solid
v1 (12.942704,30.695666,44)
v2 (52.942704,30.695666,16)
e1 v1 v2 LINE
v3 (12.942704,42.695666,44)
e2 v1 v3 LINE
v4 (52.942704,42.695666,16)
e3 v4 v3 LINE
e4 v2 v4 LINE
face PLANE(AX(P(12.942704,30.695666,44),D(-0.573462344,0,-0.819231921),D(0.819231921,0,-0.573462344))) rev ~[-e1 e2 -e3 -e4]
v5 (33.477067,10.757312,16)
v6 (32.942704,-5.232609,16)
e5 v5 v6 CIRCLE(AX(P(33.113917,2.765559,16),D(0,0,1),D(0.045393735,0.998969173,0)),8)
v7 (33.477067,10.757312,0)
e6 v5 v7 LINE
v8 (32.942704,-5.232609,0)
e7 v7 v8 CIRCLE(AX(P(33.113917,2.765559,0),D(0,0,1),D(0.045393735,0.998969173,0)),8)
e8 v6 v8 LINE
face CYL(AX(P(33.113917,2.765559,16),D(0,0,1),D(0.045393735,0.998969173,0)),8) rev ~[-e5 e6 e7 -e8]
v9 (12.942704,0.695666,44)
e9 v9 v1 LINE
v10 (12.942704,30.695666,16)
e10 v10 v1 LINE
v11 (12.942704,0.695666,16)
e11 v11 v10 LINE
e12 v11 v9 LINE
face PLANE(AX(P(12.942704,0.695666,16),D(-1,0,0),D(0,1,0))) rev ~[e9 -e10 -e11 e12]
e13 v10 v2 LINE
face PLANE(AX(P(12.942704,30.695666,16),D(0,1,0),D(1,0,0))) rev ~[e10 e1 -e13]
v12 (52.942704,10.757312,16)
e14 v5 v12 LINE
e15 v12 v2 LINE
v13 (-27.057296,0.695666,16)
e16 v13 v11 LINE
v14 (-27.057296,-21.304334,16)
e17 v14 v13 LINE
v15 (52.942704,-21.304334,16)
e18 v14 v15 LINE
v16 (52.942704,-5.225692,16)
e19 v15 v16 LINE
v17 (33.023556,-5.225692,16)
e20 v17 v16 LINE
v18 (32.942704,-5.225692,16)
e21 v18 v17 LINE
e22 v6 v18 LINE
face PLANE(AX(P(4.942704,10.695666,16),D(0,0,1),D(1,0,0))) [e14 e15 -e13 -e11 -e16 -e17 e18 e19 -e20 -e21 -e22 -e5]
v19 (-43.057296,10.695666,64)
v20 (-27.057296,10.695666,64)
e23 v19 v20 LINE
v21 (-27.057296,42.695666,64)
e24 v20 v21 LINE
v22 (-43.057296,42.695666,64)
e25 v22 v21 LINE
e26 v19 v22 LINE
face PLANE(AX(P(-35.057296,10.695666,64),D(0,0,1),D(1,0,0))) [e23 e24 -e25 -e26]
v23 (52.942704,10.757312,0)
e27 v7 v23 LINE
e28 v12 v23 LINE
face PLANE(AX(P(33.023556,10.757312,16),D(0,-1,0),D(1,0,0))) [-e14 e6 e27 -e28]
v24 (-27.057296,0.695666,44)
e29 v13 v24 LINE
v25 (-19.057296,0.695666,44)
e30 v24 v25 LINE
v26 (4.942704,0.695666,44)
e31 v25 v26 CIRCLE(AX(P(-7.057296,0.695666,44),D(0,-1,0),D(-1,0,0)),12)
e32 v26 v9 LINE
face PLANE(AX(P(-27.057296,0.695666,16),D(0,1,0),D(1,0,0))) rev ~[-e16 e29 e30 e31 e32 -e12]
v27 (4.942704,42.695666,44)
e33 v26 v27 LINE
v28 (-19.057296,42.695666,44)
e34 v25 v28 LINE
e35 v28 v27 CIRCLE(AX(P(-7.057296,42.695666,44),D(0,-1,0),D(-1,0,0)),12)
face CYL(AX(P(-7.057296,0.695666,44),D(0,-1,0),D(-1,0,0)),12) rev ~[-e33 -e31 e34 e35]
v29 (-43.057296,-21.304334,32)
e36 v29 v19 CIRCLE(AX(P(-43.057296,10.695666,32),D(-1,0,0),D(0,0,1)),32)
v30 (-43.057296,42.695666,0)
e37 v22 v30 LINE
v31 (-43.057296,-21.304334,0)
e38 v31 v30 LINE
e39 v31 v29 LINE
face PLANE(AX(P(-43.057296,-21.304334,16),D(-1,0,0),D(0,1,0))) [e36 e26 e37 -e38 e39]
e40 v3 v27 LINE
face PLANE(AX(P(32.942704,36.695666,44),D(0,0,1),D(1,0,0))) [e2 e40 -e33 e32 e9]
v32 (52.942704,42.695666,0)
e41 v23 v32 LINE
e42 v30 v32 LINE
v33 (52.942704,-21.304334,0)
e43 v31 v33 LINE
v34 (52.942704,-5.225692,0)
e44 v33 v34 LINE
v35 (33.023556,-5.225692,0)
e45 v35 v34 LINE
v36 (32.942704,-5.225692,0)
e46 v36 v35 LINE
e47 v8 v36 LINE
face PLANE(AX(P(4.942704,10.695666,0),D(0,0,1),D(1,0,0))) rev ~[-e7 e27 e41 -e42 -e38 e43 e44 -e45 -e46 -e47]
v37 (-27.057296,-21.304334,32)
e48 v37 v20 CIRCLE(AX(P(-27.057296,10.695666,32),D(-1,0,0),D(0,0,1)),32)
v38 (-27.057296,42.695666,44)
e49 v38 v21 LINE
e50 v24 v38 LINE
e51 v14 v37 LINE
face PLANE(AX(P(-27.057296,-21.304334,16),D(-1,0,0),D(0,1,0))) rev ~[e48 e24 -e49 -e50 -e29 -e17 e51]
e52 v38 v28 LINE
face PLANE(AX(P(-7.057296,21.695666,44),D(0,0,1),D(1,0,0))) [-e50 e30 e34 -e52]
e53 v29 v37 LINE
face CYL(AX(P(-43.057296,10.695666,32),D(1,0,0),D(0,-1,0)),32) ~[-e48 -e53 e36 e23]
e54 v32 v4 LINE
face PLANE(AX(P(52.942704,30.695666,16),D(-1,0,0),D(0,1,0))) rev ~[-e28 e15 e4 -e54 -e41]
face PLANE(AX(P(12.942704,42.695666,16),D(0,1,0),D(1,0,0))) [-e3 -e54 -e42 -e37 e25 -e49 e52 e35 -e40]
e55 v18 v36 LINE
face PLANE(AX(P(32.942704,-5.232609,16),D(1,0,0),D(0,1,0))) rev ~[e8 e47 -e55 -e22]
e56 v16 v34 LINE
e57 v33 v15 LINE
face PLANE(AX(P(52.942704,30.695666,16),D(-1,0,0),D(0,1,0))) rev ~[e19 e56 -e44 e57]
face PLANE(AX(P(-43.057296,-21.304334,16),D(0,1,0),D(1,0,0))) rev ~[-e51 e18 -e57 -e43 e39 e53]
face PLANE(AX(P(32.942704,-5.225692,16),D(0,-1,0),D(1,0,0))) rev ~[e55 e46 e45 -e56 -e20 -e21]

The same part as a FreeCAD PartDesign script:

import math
import FreeCAD as App
import Part
import Sketcher
from FreeCAD import Vector


def edges_at(feature, points):
    """Names of the edges that pass closest to the given points."""
    edges = feature.Shape.Edges
    near = lambda p: min(range(len(edges)), key=lambda i: edges[i].distToShape(Part.Vertex(*p))[0])
    return sorted({f"Edge{near(p) + 1}" for p in points})

doc = App.newDocument("Part")
body = doc.addObject("PartDesign::Body", "Body")

# Sketch on XY plane
sketch1 = body.newObject("Sketcher::SketchObject", "Sketch")
sketch1.AttachmentSupport = (doc.getObject("XY_Plane"), [""])
sketch1.MapMode = "FlatFace"
sketch1.addGeometry([
    Part.LineSegment(Vector(-43, 43, 0), Vector(-43, -21, 0)),
    Part.LineSegment(Vector(-43, -21, 0), Vector(53, -21, 0)),
    Part.LineSegment(Vector(53, -21, 0), Vector(53, 43, 0)),
    Part.LineSegment(Vector(53, 43, 0), Vector(-43, 43, 0)),
], False)
sketch1.addConstraint([
    Sketcher.Constraint("Coincident", 0, 2, 1, 1),
    Sketcher.Constraint("Coincident", 1, 2, 2, 1),
    Sketcher.Constraint("Coincident", 2, 2, 3, 1),
    Sketcher.Constraint("Coincident", 3, 2, 0, 1),
    Sketcher.Constraint("Vertical", 0),
    Sketcher.Constraint("Horizontal", 1),
    Sketcher.Constraint("Vertical", 2),
    Sketcher.Constraint("Horizontal", 3),
    Sketcher.Constraint("DistanceX", 1, 1, 1, 2, 96.0),
    Sketcher.Constraint("DistanceY", 0, 2, 0, 1, 64.0),
    Sketcher.Constraint("DistanceX", 0, 2, -1, 1, 43.057296),
    Sketcher.Constraint("DistanceY", 0, 2, -1, 1, 21.304334),
])
pad1 = body.newObject("PartDesign::Pad", "Pad")
pad1.Profile = sketch1
pad1.Length = 16

# Sketch on XY plane
sketch2 = body.newObject("Sketcher::SketchObject", "Sketch001")
sketch2.AttachmentSupport = (doc.getObject("XY_Plane"), [""])
sketch2.MapMode = "FlatFace"
sketch2.AttachmentOffset = App.Placement(Vector(0, 0, 16), App.Rotation())
sketch2.addGeometry([
    Part.LineSegment(Vector(-43, 43, 0), Vector(-43, -21, 0)),
    Part.LineSegment(Vector(-43, -21, 0), Vector(-27, -21, 0)),
    Part.LineSegment(Vector(-27, -21, 0), Vector(-27, 43, 0)),
    Part.LineSegment(Vector(-27, 43, 0), Vector(-43, 43, 0)),
], False)
sketch2.addConstraint([
    Sketcher.Constraint("Coincident", 0, 2, 1, 1),
    Sketcher.Constraint("Coincident", 1, 2, 2, 1),
    Sketcher.Constraint("Coincident", 2, 2, 3, 1),
    Sketcher.Constraint("Coincident", 3, 2, 0, 1),
    Sketcher.Constraint("Vertical", 0),
    Sketcher.Constraint("Horizontal", 1),
    Sketcher.Constraint("Vertical", 2),
    Sketcher.Constraint("Horizontal", 3),
    Sketcher.Constraint("DistanceX", 1, 1, 1, 2, 16.0),
    Sketcher.Constraint("DistanceY", 0, 2, 0, 1, 64.0),
    Sketcher.Constraint("DistanceX", 0, 2, -1, 1, 43.057296),
    Sketcher.Constraint("DistanceY", 0, 2, -1, 1, 21.304334),
])
pad2 = body.newObject("PartDesign::Pad", "Pad001")
pad2.Profile = sketch2
pad2.Length = 48
doc.recompute()

fillet = body.newObject("PartDesign::Fillet", "Fillet")
fillet.Base = (pad2, edges_at(pad2, [(-35.057, -21.304, 64)]))
fillet.Radius = 32

# Sketch on XY plane
sketch3 = body.newObject("Sketcher::SketchObject", "Sketch002")
sketch3.AttachmentSupport = (doc.getObject("XY_Plane"), [""])
sketch3.MapMode = "FlatFace"
sketch3.AttachmentOffset = App.Placement(Vector(0, 0, 16), App.Rotation())
sketch3.addGeometry([
    Part.LineSegment(Vector(-27, 43, 0), Vector(-27, 1, 0)),
    Part.LineSegment(Vector(-27, 1, 0), Vector(13, 1, 0)),
    Part.LineSegment(Vector(13, 1, 0), Vector(13, 43, 0)),
    Part.LineSegment(Vector(13, 43, 0), Vector(-27, 43, 0)),
], False)
sketch3.addConstraint([
    Sketcher.Constraint("Coincident", 0, 2, 1, 1),
    Sketcher.Constraint("Coincident", 1, 2, 2, 1),
    Sketcher.Constraint("Coincident", 2, 2, 3, 1),
    Sketcher.Constraint("Coincident", 3, 2, 0, 1),
    Sketcher.Constraint("Vertical", 0),
    Sketcher.Constraint("Horizontal", 1),
    Sketcher.Constraint("Vertical", 2),
    Sketcher.Constraint("Horizontal", 3),
    Sketcher.Constraint("DistanceX", 1, 1, 1, 2, 40.0),
    Sketcher.Constraint("DistanceY", 0, 2, 0, 1, 42.0),
    Sketcher.Constraint("DistanceX", 0, 2, -1, 1, 27.057296),
    Sketcher.Constraint("DistanceY", -1, 1, 0, 2, 0.695666),
])
pad3 = body.newObject("PartDesign::Pad", "Pad002")
pad3.Profile = sketch3
pad3.Length = 28

# Sketch on XZ plane
sketch4 = body.newObject("Sketcher::SketchObject", "Sketch003")
sketch4.AttachmentSupport = (doc.getObject("XZ_Plane"), [""])
sketch4.MapMode = "FlatFace"
sketch4.AttachmentOffset = App.Placement(Vector(0, 0, -0.695666), App.Rotation())
sketch4.addGeometry([
    Part.ArcOfCircle(Part.Circle(Vector(-7, 44, 0), Vector(0, 0, 1), 12), math.radians(180), math.radians(360)),
    Part.LineSegment(Vector(5, 44, 0), Vector(-19, 44, 0)),
], False)
sketch4.addConstraint([
    Sketcher.Constraint("Coincident", 0, 1, 1, 2),
    Sketcher.Constraint("Coincident", 1, 1, 0, 2),
    Sketcher.Constraint("Horizontal", 1),
    Sketcher.Constraint("Radius", 0, 12.0),
    Sketcher.Constraint("DistanceY", -1, 1, 0, 3, 44.0),
    Sketcher.Constraint("DistanceY", -1, 1, 0, 1, 44.0),
    Sketcher.Constraint("DistanceX", 0, 3, -1, 1, 7.057296),
])
pocket1 = body.newObject("PartDesign::Pocket", "Pocket")
pocket1.Profile = sketch4
pocket1.Length = 52.07

# Sketch on XY plane
sketch5 = body.newObject("Sketcher::SketchObject", "Sketch004")
sketch5.AttachmentSupport = (doc.getObject("XY_Plane"), [""])
sketch5.MapMode = "FlatFace"
sketch5.AttachmentOffset = App.Placement(Vector(0, 0, 16), App.Rotation())
sketch5.addGeometry([
    Part.LineSegment(Vector(13, 43, 0), Vector(13, 31, 0)),
    Part.LineSegment(Vector(13, 31, 0), Vector(53, 31, 0)),
    Part.LineSegment(Vector(53, 31, 0), Vector(53, 43, 0)),
    Part.LineSegment(Vector(53, 43, 0), Vector(13, 43, 0)),
], False)
sketch5.addConstraint([
    Sketcher.Constraint("Coincident", 0, 2, 1, 1),
    Sketcher.Constraint("Coincident", 1, 2, 2, 1),
    Sketcher.Constraint("Coincident", 2, 2, 3, 1),
    Sketcher.Constraint("Coincident", 3, 2, 0, 1),
    Sketcher.Constraint("Vertical", 0),
    Sketcher.Constraint("Horizontal", 1),
    Sketcher.Constraint("Vertical", 2),
    Sketcher.Constraint("Horizontal", 3),
    Sketcher.Constraint("DistanceX", 1, 1, 1, 2, 40.0),
    Sketcher.Constraint("DistanceY", 0, 2, 0, 1, 12.0),
    Sketcher.Constraint("DistanceX", -1, 1, 0, 2, 12.942704),
    Sketcher.Constraint("DistanceY", -1, 1, 0, 2, 30.695666),
])
pad4 = body.newObject("PartDesign::Pad", "Pad003")
pad4.Profile = sketch5
pad4.Length = 28

# Sketch on XZ plane
sketch6 = body.newObject("Sketcher::SketchObject", "Sketch005")
sketch6.AttachmentSupport = (doc.getObject("XZ_Plane"), [""])
sketch6.MapMode = "FlatFace"
sketch6.AttachmentOffset = App.Placement(Vector(0, 0, -30.695666), App.Rotation())
sketch6.addGeometry([
    Part.LineSegment(Vector(53, 44, 0), Vector(13, 44, 0)),
    Part.LineSegment(Vector(13, 44, 0), Vector(53, 16, 0)),
    Part.LineSegment(Vector(53, 16, 0), Vector(53, 44, 0)),
], False)
sketch6.addConstraint([
    Sketcher.Constraint("Coincident", 0, 2, 1, 1),
    Sketcher.Constraint("Coincident", 1, 2, 2, 1),
    Sketcher.Constraint("Coincident", 2, 2, 0, 1),
    Sketcher.Constraint("Horizontal", 0),
    Sketcher.Constraint("Vertical", 2),
    Sketcher.Constraint("DistanceX", 0, 2, 0, 1, 40.0),
    Sketcher.Constraint("DistanceY", 2, 1, 2, 2, 28.0),
    Sketcher.Constraint("DistanceY", -1, 1, 0, 2, 44.0),
    Sketcher.Constraint("DistanceX", -1, 1, 0, 2, 12.942704),
])
pocket2 = body.newObject("PartDesign::Pocket", "Pocket001")
pocket2.Profile = sketch6
pocket2.Length = 25.4

# Sketch on XY plane
sketch7 = body.newObject("Sketcher::SketchObject", "Sketch006")
sketch7.AttachmentSupport = (doc.getObject("XY_Plane"), [""])
sketch7.MapMode = "FlatFace"
sketch7.AttachmentOffset = App.Placement(Vector(0, 0, 16), App.Rotation())
sketch7.addGeometry([
    Part.LineSegment(Vector(33, 11, 0), Vector(33, -5, 0)),
    Part.LineSegment(Vector(33, -5, 0), Vector(53, -5, 0)),
    Part.LineSegment(Vector(53, -5, 0), Vector(53, 11, 0)),
    Part.LineSegment(Vector(53, 11, 0), Vector(33, 11, 0)),
], False)
sketch7.addConstraint([
    Sketcher.Constraint("Coincident", 0, 2, 1, 1),
    Sketcher.Constraint("Coincident", 1, 2, 2, 1),
    Sketcher.Constraint("Coincident", 2, 2, 3, 1),
    Sketcher.Constraint("Coincident", 3, 2, 0, 1),
    Sketcher.Constraint("Vertical", 0),
    Sketcher.Constraint("Horizontal", 1),
    Sketcher.Constraint("Vertical", 2),
    Sketcher.Constraint("Horizontal", 3),
    Sketcher.Constraint("DistanceX", 1, 1, 1, 2, 19.919148),
    Sketcher.Constraint("DistanceY", 0, 2, 0, 1, 15.983004),
    Sketcher.Constraint("DistanceY", 0, 2, -1, 1, 5.225692),
    Sketcher.Constraint("DistanceX", -1, 1, 0, 2, 33.023556),
])
pocket3 = body.newObject("PartDesign::Pocket", "Pocket002")
pocket3.Profile = sketch7
pocket3.Length = 25

# Sketch on XY plane
sketch8 = body.newObject("Sketcher::SketchObject", "Sketch007")
sketch8.AttachmentSupport = (doc.getObject("XY_Plane"), [""])
sketch8.MapMode = "FlatFace"
sketch8.AttachmentOffset = App.Placement(Vector(0, 0, 16), App.Rotation())
sketch8.addGeometry([
    Part.LineSegment(Vector(33.024, 10.757, 0), Vector(33.477, 10.757, 0)),  # 0
    Part.ArcOfCircle(Part.Circle(Vector(33.114, 2.766, 0), Vector(0, 0, 1), 8), math.radians(87), math.radians(269)),  # 1
    Part.LineSegment(Vector(32.943, -5.233, 0), Vector(32.943, -5.226, 0)),  # 2
    Part.LineSegment(Vector(32.943, -5.226, 0), Vector(33.024, -5.226, 0)),  # 3
    Part.LineSegment(Vector(33.024, -5.226, 0), Vector(33.024, 10.757, 0)),  # 4
], False)
sketch8.addConstraint([
    Sketcher.Constraint("Coincident", 0, 2, 1, 1),
    Sketcher.Constraint("Coincident", 1, 2, 2, 1),
    Sketcher.Constraint("Coincident", 2, 2, 3, 1),
    Sketcher.Constraint("Coincident", 3, 2, 4, 1),
    Sketcher.Constraint("Coincident", 4, 2, 0, 1),
    Sketcher.Constraint("Horizontal", 0),
    Sketcher.Constraint("Vertical", 2),
    Sketcher.Constraint("Horizontal", 3),
    Sketcher.Constraint("Vertical", 4),
    Sketcher.Constraint("Radius", 1, 8.0),
    Sketcher.Constraint("DistanceX", 0, 1, 0, 2, 0.45351),
    Sketcher.Constraint("DistanceX", 3, 1, 3, 2, 0.080852),
    Sketcher.Constraint("DistanceY", 2, 1, 2, 2, 0.006917),
    Sketcher.Constraint("DistanceY", 4, 1, 4, 2, 15.983004),
    Sketcher.Constraint("DistanceY", -1, 1, 1, 3, 2.765559),
    Sketcher.Constraint("DistanceX", -1, 1, 1, 3, 33.113917),
])
pocket4 = body.newObject("PartDesign::Pocket", "Pocket003")
pocket4.Profile = sketch8
pocket4.Length = 25

doc.recompute()
